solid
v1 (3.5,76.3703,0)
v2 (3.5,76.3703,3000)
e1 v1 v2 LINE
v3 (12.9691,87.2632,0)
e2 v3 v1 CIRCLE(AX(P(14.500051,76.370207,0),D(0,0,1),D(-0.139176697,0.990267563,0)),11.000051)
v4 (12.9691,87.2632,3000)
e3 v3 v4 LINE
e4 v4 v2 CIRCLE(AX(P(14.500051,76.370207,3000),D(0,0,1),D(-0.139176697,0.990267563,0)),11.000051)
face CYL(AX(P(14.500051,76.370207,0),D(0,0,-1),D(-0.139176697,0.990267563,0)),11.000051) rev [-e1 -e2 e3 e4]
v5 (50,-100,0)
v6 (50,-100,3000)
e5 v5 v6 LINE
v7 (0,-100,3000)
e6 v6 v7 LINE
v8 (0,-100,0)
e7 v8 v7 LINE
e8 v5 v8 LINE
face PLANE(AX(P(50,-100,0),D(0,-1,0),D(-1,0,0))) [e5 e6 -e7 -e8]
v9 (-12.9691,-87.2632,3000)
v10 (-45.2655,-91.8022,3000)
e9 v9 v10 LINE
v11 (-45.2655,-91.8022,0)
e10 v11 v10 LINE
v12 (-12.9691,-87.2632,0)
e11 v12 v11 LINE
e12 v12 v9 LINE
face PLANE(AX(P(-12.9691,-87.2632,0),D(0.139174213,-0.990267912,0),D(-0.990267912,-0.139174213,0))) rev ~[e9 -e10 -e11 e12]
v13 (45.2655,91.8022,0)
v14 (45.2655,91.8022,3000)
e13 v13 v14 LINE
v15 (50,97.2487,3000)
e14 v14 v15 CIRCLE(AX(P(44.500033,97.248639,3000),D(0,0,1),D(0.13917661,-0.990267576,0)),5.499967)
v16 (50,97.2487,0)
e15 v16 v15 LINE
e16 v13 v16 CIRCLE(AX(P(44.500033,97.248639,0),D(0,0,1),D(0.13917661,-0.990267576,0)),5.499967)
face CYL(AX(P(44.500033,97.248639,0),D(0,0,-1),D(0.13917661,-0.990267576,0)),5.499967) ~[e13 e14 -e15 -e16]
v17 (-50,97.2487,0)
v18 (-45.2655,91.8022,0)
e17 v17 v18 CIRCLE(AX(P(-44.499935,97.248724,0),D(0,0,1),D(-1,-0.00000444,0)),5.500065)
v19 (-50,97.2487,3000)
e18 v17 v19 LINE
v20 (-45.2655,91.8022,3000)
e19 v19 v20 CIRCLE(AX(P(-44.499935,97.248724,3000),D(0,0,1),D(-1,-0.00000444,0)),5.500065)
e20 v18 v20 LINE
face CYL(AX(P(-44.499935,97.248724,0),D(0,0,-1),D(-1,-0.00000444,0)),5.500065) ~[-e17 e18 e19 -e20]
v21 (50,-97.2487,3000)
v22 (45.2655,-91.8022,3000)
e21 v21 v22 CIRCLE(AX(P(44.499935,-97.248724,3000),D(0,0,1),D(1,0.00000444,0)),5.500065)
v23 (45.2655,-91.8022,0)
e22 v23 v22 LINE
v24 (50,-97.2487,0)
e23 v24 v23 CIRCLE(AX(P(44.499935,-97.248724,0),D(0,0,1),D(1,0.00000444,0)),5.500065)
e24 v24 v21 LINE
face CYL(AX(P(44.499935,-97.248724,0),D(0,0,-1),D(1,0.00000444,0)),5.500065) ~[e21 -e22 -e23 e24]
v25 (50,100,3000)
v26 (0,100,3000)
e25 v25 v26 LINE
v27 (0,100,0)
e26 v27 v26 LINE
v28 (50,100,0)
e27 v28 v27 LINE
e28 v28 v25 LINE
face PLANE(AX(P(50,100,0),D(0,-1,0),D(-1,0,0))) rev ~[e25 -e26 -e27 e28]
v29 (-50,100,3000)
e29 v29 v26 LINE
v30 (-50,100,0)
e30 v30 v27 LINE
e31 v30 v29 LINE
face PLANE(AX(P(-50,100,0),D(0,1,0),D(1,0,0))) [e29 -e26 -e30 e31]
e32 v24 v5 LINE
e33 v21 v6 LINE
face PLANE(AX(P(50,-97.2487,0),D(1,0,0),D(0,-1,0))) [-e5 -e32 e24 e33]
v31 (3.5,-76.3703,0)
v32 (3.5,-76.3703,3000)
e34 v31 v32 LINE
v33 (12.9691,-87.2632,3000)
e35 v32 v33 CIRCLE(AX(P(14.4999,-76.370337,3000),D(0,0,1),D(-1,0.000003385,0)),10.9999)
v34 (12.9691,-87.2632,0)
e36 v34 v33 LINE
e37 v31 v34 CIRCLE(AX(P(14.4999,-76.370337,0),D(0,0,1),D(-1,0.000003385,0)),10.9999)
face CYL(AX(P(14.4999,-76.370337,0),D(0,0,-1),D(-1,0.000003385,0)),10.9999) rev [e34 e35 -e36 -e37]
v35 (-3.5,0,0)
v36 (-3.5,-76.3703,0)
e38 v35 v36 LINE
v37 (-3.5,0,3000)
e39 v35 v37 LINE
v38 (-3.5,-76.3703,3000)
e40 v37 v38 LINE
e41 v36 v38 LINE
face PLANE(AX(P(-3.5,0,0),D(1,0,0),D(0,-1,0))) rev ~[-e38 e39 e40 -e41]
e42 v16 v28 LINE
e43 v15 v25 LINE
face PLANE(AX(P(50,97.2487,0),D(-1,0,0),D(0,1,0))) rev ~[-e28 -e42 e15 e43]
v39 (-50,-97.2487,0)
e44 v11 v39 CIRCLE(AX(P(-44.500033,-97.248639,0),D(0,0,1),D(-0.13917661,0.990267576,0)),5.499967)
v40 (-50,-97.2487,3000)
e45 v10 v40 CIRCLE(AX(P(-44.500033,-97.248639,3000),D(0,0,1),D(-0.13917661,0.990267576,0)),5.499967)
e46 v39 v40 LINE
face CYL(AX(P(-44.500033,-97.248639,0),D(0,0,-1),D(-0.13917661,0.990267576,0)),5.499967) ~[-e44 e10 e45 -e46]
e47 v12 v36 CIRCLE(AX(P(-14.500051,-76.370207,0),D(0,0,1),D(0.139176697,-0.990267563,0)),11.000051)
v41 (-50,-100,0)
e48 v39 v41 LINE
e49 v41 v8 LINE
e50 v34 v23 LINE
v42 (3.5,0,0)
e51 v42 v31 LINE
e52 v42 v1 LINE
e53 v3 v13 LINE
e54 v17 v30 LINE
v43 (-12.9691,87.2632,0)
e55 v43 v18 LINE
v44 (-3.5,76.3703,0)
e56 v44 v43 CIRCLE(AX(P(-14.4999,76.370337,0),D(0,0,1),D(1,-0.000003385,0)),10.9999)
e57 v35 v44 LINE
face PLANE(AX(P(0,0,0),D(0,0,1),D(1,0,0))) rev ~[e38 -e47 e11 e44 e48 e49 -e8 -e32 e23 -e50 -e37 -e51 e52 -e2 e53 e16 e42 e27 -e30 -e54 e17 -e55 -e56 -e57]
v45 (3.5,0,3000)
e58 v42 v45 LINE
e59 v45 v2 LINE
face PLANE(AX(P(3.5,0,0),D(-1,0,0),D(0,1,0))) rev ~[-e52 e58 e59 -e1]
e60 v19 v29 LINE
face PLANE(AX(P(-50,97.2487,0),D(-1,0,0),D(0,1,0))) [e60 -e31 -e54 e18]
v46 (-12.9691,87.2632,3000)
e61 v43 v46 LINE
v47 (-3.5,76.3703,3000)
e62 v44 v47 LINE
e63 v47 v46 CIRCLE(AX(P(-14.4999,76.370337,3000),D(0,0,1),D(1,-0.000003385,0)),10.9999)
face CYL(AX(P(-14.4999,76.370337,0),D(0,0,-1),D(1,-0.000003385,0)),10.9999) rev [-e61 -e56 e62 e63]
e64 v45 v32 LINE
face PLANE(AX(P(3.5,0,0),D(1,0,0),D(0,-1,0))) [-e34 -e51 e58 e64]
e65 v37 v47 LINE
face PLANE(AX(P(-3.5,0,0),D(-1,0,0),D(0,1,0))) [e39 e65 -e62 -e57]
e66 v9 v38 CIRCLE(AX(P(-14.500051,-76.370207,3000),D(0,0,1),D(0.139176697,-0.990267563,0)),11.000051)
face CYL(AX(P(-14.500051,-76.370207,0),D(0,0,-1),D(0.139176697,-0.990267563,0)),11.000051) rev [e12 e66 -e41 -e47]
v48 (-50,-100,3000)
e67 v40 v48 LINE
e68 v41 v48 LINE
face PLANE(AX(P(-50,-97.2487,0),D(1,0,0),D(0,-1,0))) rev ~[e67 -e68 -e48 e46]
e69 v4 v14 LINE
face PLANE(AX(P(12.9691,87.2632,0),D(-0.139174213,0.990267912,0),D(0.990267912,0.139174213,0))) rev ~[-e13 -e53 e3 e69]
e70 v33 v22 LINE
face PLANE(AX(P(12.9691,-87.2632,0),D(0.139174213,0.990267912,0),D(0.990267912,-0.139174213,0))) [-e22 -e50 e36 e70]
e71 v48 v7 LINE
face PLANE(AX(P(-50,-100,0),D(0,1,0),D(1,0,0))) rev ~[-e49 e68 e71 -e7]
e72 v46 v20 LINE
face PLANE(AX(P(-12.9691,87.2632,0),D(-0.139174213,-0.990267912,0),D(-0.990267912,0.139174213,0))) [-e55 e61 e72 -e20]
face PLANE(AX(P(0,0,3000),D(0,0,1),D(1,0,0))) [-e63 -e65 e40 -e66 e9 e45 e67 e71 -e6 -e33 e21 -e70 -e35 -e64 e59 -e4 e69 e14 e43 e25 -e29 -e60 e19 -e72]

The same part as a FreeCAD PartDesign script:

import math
import FreeCAD as App
import Part
import Sketcher
from FreeCAD import Vector
Q = App.Units.Quantity

doc = App.newDocument("Part")
body = doc.addObject("PartDesign::Body", "Body")

# Sketch on XY plane
sketch1 = body.newObject("Sketcher::SketchObject", "Sketch")
sketch1.AttachmentSupport = (doc.getObject("XY_Plane"), [""])
sketch1.MapMode = "FlatFace"
sketch1.addGeometry([
    Part.LineSegment(Vector(-3.5, 76.3703, 0), Vector(-3.5, -76.3703, 0)),  # 0
    Part.ArcOfCircle(Part.Circle(Vector(-14.5, -76.3703, 0), Vector(0, 0, 1), 10.999951), math.radians(-81.999986), math.radians(0)),  # 1
    Part.LineSegment(Vector(-12.9691, -87.2632, 0), Vector(-45.2655, -91.8022, 0)),  # 2
    Part.ArcOfCircle(Part.Circle(Vector(-44.5, -97.2487, 0), Vector(0, 0, 1), 5.500032), math.radians(98.000457), math.radians(180)),  # 3
    Part.LineSegment(Vector(-50, -97.2487, 0), Vector(-50, -100, 0)),  # 4
    Part.LineSegment(Vector(-50, -100, 0), Vector(50, -100, 0)),  # 5
    Part.LineSegment(Vector(50, -100, 0), Vector(50, -97.2487, 0)),  # 6
    Part.ArcOfCircle(Part.Circle(Vector(44.5, -97.2487, 0), Vector(0, 0, 1), 5.5), math.radians(0), math.radians(81.999543)),  # 7
    Part.LineSegment(Vector(45.2655, -91.8022, 0), Vector(12.9691, -87.2632, 0)),  # 8
    Part.ArcOfCircle(Part.Circle(Vector(14.5, -76.3703, 0), Vector(0, 0, 1), 11), math.radians(180), math.radians(261.999986)),  # 9
    Part.LineSegment(Vector(3.5, -76.3703, 0), Vector(3.5, 76.3703, 0)),  # 10
    Part.ArcOfCircle(Part.Circle(Vector(14.5, 76.3703, 0), Vector(0, 0, 1), 10.999951), math.radians(98.000014), math.radians(180)),  # 11
    Part.LineSegment(Vector(12.9691, 87.2632, 0), Vector(45.2655, 91.8022, 0)),  # 12
    Part.ArcOfCircle(Part.Circle(Vector(44.5, 97.2487, 0), Vector(0, 0, 1), 5.500032), math.radians(-81.999543), math.radians(0)),  # 13
    Part.LineSegment(Vector(50, 97.2487, 0), Vector(50, 100, 0)),  # 14
    Part.LineSegment(Vector(50, 100, 0), Vector(-50, 100, 0)),  # 15
    Part.LineSegment(Vector(-50, 100, 0), Vector(-50, 97.2487, 0)),  # 16
    Part.ArcOfCircle(Part.Circle(Vector(-44.5, 97.2487, 0), Vector(0, 0, 1), 5.5), math.radians(180), math.radians(261.999543)),  # 17
    Part.LineSegment(Vector(-45.2655, 91.8022, 0), Vector(-12.9691, 87.2632, 0)),  # 18
    Part.ArcOfCircle(Part.Circle(Vector(-14.5, 76.3703, 0), Vector(0, 0, 1), 11), math.radians(0), math.radians(81.999986)),  # 19
], False)
sketch1.addConstraint([
    Sketcher.Constraint("Tangent", 0, 2, 1, 2),
    Sketcher.Constraint("Tangent", 1, 1, 2, 1),
    Sketcher.Constraint("Tangent", 2, 2, 3, 1),
    Sketcher.Constraint("Tangent", 3, 2, 4, 1),
    Sketcher.Constraint("Coincident", 4, 2, 5, 1),
    Sketcher.Constraint("Coincident", 5, 2, 6, 1),
    Sketcher.Constraint("Tangent", 6, 2, 7, 1),
    Sketcher.Constraint("Tangent", 7, 2, 8, 1),
    Sketcher.Constraint("Tangent", 8, 2, 9, 2),
    Sketcher.Constraint("Tangent", 9, 1, 10, 1),
    Sketcher.Constraint("Tangent", 10, 2, 11, 2),
    Sketcher.Constraint("Tangent", 11, 1, 12, 1),
    Sketcher.Constraint("Tangent", 12, 2, 13, 1),
    Sketcher.Constraint("Tangent", 13, 2, 14, 1),
    Sketcher.Constraint("Coincident", 14, 2, 15, 1),
    Sketcher.Constraint("Coincident", 15, 2, 16, 1),
    Sketcher.Constraint("Tangent", 16, 2, 17, 1),
    Sketcher.Constraint("Tangent", 17, 2, 18, 1),
    Sketcher.Constraint("Tangent", 18, 2, 19, 2),
    Sketcher.Constraint("Tangent", 19, 1, 0, 1),
    Sketcher.Constraint("Vertical", 0),
    Sketcher.Constraint("Vertical", 4),
    Sketcher.Constraint("Horizontal", 5),
    Sketcher.Constraint("Vertical", 6),
    Sketcher.Constraint("Vertical", 10),
    Sketcher.Constraint("Vertical", 14),
    Sketcher.Constraint("Horizontal", 15),
    Sketcher.Constraint("Vertical", 16),
    Sketcher.Constraint("Equal", 3, 7),
    Sketcher.Constraint("Equal", 1, 9),
    Sketcher.Constraint("Equal", 9, 11),
    Sketcher.Constraint("Equal", 7, 13),
    Sketcher.Constraint("Equal", 13, 17),
    Sketcher.Constraint("Equal", 11, 19),
    Sketcher.Constraint("Symmetric", 1, 3, 11, 3, -1, 1),
    Sketcher.Constraint("Symmetric", 3, 3, 13, 3, -1, 1),
    Sketcher.Constraint("Symmetric", 7, 3, 17, 3, -1, 1),
    Sketcher.Constraint("Symmetric", 3, 3, 7, 3, -2),
    Sketcher.Constraint("Parallel", 8, 18),
    Sketcher.Constraint("Horizontal", 1, 3, 9, 3),
    Sketcher.Constraint("Equal", 6, 14),
    Sketcher.Constraint("Radius", 1, 11.0),
    Sketcher.Constraint("Radius", 3, 5.5),
    Sketcher.Constraint("DistanceX", 5, 1, 5, 2, 100.0),
    Sketcher.Constraint("DistanceY", 4, 2, -1, 1, 100.0),
    Sketcher.Constraint("DistanceX", 0, 2, -1, 1, 3.5),
    Sketcher.Constraint("Angle", 2, Q("-172 deg")),
    Sketcher.Constraint("DistanceY", 0, 2, 0, 1, 152.7406),
])
pad1 = body.newObject("PartDesign::Pad", "Pad")
pad1.Profile = sketch1
pad1.Length = 3000

doc.recompute()
